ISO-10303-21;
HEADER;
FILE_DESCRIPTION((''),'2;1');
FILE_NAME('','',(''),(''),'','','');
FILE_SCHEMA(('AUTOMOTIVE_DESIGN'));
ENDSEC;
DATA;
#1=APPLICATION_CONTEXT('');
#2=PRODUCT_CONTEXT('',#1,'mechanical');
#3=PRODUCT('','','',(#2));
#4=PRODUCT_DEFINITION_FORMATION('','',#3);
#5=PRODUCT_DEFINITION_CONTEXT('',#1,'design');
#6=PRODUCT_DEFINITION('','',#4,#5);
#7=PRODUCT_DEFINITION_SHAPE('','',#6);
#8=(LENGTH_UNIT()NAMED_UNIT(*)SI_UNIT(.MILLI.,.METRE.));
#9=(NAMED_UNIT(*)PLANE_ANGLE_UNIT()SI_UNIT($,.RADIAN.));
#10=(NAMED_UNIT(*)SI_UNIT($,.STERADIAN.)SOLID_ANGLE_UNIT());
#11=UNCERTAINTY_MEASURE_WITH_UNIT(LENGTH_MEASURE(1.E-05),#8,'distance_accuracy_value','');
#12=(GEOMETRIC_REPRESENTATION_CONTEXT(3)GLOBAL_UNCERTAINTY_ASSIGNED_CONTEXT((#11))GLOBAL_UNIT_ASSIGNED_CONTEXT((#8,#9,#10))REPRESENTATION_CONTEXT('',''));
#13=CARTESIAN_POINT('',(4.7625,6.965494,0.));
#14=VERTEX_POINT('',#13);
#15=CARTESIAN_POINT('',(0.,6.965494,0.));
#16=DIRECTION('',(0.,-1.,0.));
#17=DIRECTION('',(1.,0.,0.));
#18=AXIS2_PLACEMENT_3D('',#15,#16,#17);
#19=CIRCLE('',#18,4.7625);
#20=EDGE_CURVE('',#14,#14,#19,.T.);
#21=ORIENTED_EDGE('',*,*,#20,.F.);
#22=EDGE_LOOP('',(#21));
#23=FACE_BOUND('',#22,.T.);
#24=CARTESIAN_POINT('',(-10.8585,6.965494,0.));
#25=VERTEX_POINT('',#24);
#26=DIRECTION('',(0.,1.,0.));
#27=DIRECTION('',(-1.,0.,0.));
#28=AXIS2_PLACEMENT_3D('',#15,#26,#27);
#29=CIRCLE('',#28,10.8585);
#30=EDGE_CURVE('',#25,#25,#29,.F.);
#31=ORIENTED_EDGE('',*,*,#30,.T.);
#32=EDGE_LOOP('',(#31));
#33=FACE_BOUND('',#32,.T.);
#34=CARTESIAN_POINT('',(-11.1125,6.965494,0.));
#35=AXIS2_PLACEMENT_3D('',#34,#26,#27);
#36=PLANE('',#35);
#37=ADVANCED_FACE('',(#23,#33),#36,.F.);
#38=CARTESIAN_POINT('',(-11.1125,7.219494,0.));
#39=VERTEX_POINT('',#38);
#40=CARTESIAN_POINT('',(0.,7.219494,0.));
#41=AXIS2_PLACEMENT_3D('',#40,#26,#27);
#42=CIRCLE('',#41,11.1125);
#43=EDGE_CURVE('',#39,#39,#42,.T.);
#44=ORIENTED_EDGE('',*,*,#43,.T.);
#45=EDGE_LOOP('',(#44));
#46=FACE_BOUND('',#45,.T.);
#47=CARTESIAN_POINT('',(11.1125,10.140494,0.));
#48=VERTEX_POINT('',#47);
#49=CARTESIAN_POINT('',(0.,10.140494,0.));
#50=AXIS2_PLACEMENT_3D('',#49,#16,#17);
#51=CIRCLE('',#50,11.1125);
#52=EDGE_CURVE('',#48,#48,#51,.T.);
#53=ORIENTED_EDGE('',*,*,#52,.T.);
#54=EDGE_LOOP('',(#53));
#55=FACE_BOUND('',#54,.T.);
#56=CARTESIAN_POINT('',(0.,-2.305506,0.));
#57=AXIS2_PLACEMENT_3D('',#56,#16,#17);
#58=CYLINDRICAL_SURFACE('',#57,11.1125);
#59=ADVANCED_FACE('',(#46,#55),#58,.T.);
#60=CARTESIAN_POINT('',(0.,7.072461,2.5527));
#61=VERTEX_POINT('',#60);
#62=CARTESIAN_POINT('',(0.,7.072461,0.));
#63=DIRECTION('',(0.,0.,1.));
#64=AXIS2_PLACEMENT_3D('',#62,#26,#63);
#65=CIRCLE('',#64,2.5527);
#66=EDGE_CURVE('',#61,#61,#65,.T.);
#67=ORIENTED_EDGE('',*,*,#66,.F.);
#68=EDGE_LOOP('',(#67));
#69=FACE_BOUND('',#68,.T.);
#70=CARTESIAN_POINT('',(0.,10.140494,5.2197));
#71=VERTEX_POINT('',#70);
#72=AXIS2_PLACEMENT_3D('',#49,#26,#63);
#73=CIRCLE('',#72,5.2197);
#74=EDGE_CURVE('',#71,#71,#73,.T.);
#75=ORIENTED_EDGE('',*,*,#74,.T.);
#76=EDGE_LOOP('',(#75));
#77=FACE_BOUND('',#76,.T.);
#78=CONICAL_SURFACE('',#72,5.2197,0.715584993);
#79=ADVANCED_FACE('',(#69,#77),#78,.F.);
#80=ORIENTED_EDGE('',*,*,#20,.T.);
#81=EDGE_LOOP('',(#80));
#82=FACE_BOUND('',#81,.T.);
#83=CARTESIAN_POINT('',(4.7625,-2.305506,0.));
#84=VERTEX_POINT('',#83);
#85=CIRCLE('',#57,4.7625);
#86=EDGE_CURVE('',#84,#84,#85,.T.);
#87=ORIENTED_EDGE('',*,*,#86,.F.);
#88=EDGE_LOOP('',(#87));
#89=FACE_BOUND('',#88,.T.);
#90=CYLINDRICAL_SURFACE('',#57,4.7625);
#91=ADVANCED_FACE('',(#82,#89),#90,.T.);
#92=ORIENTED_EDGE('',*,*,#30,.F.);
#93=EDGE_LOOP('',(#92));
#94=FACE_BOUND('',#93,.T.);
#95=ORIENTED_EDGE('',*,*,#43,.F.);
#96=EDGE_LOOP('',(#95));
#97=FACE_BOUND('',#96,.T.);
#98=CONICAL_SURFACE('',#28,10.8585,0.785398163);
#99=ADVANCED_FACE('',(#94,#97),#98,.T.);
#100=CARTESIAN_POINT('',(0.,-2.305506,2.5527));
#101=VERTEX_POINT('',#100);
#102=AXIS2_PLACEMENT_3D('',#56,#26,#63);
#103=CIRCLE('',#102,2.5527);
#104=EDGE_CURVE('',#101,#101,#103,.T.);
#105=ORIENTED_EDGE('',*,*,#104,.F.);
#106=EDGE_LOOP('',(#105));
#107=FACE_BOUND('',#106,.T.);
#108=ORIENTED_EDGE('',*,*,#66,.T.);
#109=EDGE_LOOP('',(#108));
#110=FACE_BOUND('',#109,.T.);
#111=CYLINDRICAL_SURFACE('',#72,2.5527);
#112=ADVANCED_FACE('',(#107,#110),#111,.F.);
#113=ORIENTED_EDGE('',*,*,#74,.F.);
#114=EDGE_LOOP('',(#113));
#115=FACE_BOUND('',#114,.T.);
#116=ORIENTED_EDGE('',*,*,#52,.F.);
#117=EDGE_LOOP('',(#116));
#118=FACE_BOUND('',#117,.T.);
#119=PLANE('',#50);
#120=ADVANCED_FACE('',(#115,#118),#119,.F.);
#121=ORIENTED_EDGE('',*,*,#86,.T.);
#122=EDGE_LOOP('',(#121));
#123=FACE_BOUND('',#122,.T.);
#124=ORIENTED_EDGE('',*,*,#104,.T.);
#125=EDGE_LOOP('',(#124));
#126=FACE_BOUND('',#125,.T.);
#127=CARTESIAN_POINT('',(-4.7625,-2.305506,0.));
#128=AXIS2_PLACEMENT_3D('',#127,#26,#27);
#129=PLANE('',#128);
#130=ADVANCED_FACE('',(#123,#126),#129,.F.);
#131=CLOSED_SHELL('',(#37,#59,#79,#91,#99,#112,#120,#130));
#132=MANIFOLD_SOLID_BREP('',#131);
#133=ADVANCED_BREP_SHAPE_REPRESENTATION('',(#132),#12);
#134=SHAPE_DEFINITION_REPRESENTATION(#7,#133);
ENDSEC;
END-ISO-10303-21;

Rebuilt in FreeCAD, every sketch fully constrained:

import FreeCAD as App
import Part
import Sketcher

V = App.Vector
Q = App.Units.Quantity


def edges_at(feature, points):
    """Names of the edges that pass closest to the given points."""
    edges = feature.Shape.Edges
    near = lambda p: min(range(len(edges)), key=lambda i: edges[i].distToShape(Part.Vertex(*p))[0])
    return sorted({f"Edge{near(p) + 1}" for p in points})

doc = App.newDocument("Part")
body = doc.addObject("PartDesign::Body", "Body")

# Sketch on XY plane
sketch1 = body.newObject("Sketcher::SketchObject", "Sketch")
sketch1.AttachmentSupport = (doc.getObject("XY_Plane"), [""])
sketch1.MapMode = "FlatFace"
sketch1.addGeometry(Part.LineSegment(V(0, 10.140494, 0), V(-11.1125, 10.140494, 0)), False)
sketch1.addGeometry(Part.LineSegment(V(-11.1125, 10.140494, 0), V(-11.1125, 6.965494, 0)), False)
sketch1.addGeometry(Part.LineSegment(V(-11.1125, 6.965494, 0), V(-4.7625, 6.965494, 0)), False)
sketch1.addGeometry(Part.LineSegment(V(-4.7625, 6.965494, 0), V(-4.7625, -2.305506, 0)), False)
sketch1.addGeometry(Part.LineSegment(V(-4.7625, -2.305506, 0), V(0, -2.305506, 0)), False)
sketch1.addGeometry(Part.LineSegment(V(0, -2.305506, 0), V(0, 10.140494, 0)), False)
sketch1.addConstraint(Sketcher.Constraint("Coincident", 0, 2, 1, 1))
sketch1.addConstraint(Sketcher.Constraint("Coincident", 1, 2, 2, 1))
sketch1.addConstraint(Sketcher.Constraint("Coincident", 2, 2, 3, 1))
sketch1.addConstraint(Sketcher.Constraint("Coincident", 3, 2, 4, 1))
sketch1.addConstraint(Sketcher.Constraint("Coincident", 4, 2, 5, 1))
sketch1.addConstraint(Sketcher.Constraint("Coincident", 5, 2, 0, 1))
sketch1.addConstraint(Sketcher.Constraint("Horizontal", 0))
sketch1.addConstraint(Sketcher.Constraint("Vertical", 1))
sketch1.addConstraint(Sketcher.Constraint("Horizontal", 2))
sketch1.addConstraint(Sketcher.Constraint("Vertical", 3))
sketch1.addConstraint(Sketcher.Constraint("Horizontal", 4))
sketch1.addConstraint(Sketcher.Constraint("Vertical", 5))
sketch1.addConstraint(Sketcher.Constraint("PointOnObject", 4, 2, -2))
sketch1.addConstraint(Sketcher.Constraint("DistanceX", 2, 1, 2, 2, Q("0.25 in")))
sketch1.addConstraint(Sketcher.Constraint("DistanceY", 5, 1, 5, 2, Q("0.49 in")))
sketch1.addConstraint(Sketcher.Constraint("DistanceX", 0, 2, 0, 1, Q("0.4375 in")))
sketch1.addConstraint(Sketcher.Constraint("DistanceY", 1, 2, 1, 1, Q("0.125 in")))
sketch1.addConstraint(Sketcher.Constraint("DistanceY", -1, 1, 0, 2, Q("10.140494 mm")))
revolution = body.newObject("PartDesign::Revolution", "Revolution")
revolution.Profile = sketch1
revolution.ReferenceAxis = (sketch1, ["V_Axis"])
revolution.Angle = 360

# Sketch on XZ plane
sketch2 = body.newObject("Sketcher::SketchObject", "Sketch001")
sketch2.AttachmentSupport = (doc.getObject("XZ_Plane"), [""])
sketch2.MapMode = "FlatFace"
sketch2.AttachmentOffset = App.Placement(V(0, 0, -10.140494), App.Rotation())
sketch2.addGeometry(Part.Circle(V(0, 0, 0), V(0, 0, 1), 2.5527), False)
sketch2.addConstraint(Sketcher.Constraint("Coincident", 0, 3, -1, 1))
sketch2.addConstraint(Sketcher.Constraint("Diameter", 0, Q("0.201 in")))
doc.recompute()
hole = body.newObject("PartDesign::Hole", "Hole")
hole.Profile = sketch2
hole.ThreadType = "None"
hole.Diameter = Q("0.201 in")
hole.DepthType = "ThroughAll"
hole.HoleCutType = "Countersink"
hole.HoleCutDiameter = Q("0.411 in")
hole.HoleCutCountersinkAngle = 82
hole.Reversed = True
doc.recompute()

chamfer = body.newObject("PartDesign::Chamfer", "Chamfer")
chamfer.Base = (hole, edges_at(hole, [(-11.113, 6.965, 0)]))
chamfer.Size = Q("0.01 in")

doc.recompute()
